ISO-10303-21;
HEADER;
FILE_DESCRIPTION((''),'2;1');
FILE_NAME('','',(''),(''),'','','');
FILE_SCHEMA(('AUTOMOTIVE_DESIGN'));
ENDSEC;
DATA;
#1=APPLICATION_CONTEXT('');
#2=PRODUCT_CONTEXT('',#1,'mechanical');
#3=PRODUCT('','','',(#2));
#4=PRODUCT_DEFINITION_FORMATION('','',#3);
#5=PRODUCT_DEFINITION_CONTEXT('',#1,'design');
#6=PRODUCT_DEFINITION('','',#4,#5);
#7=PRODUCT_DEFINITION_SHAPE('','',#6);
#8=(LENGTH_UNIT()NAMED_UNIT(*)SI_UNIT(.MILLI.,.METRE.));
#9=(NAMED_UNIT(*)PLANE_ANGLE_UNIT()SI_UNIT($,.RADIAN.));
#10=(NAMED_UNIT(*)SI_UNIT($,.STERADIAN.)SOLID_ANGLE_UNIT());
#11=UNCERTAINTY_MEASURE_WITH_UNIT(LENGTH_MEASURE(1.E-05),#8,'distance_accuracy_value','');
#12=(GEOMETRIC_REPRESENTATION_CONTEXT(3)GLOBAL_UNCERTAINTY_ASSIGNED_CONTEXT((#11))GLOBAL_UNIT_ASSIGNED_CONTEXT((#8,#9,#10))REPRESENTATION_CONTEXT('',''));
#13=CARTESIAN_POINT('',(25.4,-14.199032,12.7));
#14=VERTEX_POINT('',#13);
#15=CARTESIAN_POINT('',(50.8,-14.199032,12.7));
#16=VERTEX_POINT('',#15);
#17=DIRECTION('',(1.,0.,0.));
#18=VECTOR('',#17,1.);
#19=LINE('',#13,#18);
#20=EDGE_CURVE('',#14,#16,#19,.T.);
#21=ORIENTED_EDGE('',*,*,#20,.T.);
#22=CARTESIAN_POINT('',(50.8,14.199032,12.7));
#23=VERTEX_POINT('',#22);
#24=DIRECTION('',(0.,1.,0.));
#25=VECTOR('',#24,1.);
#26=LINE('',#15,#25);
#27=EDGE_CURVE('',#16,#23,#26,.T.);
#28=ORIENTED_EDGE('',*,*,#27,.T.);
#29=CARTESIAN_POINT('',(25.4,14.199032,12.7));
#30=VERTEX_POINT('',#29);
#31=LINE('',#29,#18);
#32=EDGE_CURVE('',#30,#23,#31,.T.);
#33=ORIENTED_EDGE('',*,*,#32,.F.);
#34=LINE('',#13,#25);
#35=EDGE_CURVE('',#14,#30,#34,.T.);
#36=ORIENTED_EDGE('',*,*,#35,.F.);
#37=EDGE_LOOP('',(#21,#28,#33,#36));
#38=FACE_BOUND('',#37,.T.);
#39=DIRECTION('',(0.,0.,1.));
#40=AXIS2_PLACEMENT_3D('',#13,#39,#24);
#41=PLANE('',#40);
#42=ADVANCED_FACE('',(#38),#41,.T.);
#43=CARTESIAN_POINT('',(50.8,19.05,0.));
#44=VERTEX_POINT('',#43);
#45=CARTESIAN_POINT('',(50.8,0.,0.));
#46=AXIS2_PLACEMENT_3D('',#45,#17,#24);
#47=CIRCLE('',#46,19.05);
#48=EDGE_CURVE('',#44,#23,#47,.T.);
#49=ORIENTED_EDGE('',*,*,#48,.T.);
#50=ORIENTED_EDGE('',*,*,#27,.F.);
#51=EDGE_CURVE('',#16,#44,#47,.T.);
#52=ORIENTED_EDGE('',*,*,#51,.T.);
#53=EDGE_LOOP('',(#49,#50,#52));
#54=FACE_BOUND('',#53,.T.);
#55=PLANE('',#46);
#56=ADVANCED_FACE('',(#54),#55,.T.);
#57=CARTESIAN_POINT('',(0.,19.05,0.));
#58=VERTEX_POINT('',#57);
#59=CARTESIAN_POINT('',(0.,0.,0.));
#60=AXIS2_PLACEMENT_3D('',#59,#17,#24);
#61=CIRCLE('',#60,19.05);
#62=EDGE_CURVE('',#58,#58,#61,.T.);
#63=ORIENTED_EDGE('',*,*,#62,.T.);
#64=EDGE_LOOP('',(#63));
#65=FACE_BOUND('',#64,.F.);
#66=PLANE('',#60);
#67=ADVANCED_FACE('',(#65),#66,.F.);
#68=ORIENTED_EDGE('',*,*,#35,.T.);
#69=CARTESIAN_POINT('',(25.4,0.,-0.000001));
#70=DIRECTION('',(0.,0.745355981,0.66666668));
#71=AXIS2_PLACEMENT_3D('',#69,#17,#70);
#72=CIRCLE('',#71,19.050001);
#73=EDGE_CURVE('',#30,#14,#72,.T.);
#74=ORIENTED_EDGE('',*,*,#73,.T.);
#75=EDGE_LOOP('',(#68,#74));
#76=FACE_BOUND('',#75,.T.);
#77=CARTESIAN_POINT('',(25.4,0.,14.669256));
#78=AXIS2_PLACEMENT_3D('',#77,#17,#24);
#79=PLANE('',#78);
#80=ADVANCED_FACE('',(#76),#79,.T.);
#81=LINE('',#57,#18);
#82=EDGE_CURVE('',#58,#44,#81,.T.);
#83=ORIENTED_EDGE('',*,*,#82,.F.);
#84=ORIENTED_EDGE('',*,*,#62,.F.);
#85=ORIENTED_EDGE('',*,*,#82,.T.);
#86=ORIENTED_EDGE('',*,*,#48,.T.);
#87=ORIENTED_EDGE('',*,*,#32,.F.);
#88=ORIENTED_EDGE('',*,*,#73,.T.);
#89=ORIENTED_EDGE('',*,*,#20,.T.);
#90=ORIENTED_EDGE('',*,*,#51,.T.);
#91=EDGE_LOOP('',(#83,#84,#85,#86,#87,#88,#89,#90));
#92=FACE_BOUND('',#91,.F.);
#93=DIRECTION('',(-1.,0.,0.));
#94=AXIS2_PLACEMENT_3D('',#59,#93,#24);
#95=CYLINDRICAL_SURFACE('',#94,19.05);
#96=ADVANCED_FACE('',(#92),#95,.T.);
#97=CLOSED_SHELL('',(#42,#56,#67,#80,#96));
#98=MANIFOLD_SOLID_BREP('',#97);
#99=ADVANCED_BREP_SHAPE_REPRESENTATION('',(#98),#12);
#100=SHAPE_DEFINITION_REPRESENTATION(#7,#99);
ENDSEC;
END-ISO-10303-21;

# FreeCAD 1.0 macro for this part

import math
import FreeCAD as App
import Part
import Sketcher
Q = App.Units.Quantity

doc = App.newDocument("Part")
body = doc.addObject("PartDesign::Body", "Body")

# Sketch on YZ plane
sketch1 = body.newObject("Sketcher::SketchObject", "Sketch")
sketch1.AttachmentSupport = (doc.getObject("YZ_Plane"), [""])
sketch1.MapMode = "FlatFace"
sketch1.addGeometry(Part.Circle(App.Vector(0, 0, 0), App.Vector(0, 0, 1), 19.05), False)
sketch1.addConstraint(Sketcher.Constraint("Coincident", 0, 3, -1, 1))
sketch1.addConstraint(Sketcher.Constraint("Diameter", 0, Q("1.5 in")))
pad1 = body.newObject("PartDesign::Pad", "Pad")
pad1.Profile = sketch1
pad1.Length = Q("2 in")

# Sketch on YZ plane
sketch2 = body.newObject("Sketcher::SketchObject", "Sketch001")
sketch2.AttachmentSupport = (doc.getObject("YZ_Plane"), [""])
sketch2.MapMode = "FlatFace"
sketch2.AttachmentOffset = App.Placement(App.Vector(0, 0, 1 * 25.4), App.Rotation())
sketch2.addGeometry(Part.ArcOfCircle(Part.Circle(App.Vector(0, -0.000001, 0), App.Vector(0, 0, 1), 19.050001), math.radians(41.810316), math.radians(138.189684)), False)
sketch2.addGeometry(Part.LineSegment(App.Vector(-14.199032, 12.7, 0), App.Vector(14.199032, 12.7, 0)), False)
sketch2.addConstraint(Sketcher.Constraint("Coincident", 0, 1, 1, 2))
sketch2.addConstraint(Sketcher.Constraint("Coincident", 1, 1, 0, 2))
sketch2.addConstraint(Sketcher.Constraint("Horizontal", 1))
sketch2.addConstraint(Sketcher.Constraint("Coincident", 0, 3, -1, 1))
sketch2.addConstraint(Sketcher.Constraint("Radius", 0, Q("0.75 in")))
sketch2.addConstraint(Sketcher.Constraint("DistanceY", -1, 1, 0, 1, Q("0.5 in")))
pocket1 = body.newObject("PartDesign::Pocket", "Pocket")
pocket1.Profile = sketch2
pocket1.Length = Q("1 in")
pocket1.Reversed = True

doc.recompute()
